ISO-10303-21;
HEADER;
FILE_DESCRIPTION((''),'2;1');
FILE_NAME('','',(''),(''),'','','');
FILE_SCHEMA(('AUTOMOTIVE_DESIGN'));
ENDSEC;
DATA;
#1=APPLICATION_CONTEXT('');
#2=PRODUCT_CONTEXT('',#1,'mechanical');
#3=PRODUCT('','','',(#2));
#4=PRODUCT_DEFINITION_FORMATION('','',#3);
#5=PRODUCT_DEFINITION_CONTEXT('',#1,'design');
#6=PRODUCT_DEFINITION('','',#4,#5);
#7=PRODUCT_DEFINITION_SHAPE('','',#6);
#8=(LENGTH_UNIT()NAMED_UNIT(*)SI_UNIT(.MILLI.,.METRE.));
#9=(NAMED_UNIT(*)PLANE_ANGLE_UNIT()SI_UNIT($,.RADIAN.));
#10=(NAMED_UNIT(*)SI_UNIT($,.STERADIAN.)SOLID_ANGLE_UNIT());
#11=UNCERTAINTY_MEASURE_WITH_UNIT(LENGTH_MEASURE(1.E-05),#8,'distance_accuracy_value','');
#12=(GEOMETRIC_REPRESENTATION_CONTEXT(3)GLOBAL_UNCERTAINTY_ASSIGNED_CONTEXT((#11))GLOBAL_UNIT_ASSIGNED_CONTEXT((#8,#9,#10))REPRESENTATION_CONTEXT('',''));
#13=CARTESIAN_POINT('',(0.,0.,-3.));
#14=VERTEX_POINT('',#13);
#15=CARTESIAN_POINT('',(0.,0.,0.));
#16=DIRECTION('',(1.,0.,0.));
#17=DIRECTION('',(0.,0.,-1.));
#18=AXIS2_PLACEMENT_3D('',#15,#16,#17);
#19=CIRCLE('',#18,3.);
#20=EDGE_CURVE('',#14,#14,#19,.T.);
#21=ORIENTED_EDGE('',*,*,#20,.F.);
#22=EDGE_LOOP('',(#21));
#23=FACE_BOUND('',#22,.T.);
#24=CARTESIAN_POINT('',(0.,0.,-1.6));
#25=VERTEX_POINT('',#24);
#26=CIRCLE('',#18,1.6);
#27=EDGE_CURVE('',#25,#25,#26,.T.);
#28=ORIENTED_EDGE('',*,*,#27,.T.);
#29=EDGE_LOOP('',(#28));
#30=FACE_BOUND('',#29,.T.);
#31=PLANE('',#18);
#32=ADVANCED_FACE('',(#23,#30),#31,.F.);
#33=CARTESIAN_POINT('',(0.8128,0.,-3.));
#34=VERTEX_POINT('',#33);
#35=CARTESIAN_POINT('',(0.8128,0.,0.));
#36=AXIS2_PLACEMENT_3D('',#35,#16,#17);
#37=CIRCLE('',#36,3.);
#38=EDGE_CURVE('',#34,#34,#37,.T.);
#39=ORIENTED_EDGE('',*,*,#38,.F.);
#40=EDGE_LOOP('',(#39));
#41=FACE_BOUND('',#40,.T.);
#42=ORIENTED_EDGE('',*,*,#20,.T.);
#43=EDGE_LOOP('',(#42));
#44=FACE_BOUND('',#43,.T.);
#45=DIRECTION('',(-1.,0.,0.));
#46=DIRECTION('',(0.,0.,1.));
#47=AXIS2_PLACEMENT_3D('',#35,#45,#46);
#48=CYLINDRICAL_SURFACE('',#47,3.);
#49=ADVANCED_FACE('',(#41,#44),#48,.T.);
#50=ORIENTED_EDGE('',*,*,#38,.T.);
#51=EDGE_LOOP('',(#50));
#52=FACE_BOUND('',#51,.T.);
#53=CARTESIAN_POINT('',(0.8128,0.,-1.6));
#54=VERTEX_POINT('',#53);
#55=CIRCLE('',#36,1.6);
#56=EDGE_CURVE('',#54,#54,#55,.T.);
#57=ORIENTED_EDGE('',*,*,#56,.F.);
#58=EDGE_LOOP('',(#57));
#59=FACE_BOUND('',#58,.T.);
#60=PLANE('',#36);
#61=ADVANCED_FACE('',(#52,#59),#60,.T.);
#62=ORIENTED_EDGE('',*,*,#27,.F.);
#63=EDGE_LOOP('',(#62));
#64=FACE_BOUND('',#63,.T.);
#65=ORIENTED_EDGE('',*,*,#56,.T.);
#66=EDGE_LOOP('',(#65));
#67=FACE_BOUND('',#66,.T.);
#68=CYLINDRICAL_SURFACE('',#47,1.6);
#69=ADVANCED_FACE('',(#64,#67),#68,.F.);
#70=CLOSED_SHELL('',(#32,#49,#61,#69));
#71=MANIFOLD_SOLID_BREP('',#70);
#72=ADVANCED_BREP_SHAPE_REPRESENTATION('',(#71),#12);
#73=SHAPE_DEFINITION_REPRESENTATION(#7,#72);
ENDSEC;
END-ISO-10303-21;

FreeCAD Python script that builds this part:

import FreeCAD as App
import Part
import Sketcher

V = App.Vector

doc = App.newDocument("Part")
body = doc.addObject("PartDesign::Body", "Body")

sketch1 = body.newObject("Sketcher::SketchObject", "Sketch")
sketch1.AttachmentSupport = (doc.getObject("YZ_Plane"), [""])
sketch1.MapMode = "FlatFace"
sketch1.addGeometry([
    Part.Circle(V(0, 0, 0), V(0, 0, 1), 3),
    Part.Circle(V(0, 0, 0), V(0, 0, 1), 1.6),
], False)
sketch1.addConstraint([
    Sketcher.Constraint("Coincident", 0, 3, -1, 1),
    Sketcher.Constraint("Coincident", 1, 3, -1, 1),
    Sketcher.Constraint("Diameter", 0, 6.0),
    Sketcher.Constraint("Diameter", 1, 3.2),
])
pad1 = body.newObject("PartDesign::Pad", "Pad")
pad1.Profile = sketch1
pad1.Length = 0.8128

doc.recompute()
